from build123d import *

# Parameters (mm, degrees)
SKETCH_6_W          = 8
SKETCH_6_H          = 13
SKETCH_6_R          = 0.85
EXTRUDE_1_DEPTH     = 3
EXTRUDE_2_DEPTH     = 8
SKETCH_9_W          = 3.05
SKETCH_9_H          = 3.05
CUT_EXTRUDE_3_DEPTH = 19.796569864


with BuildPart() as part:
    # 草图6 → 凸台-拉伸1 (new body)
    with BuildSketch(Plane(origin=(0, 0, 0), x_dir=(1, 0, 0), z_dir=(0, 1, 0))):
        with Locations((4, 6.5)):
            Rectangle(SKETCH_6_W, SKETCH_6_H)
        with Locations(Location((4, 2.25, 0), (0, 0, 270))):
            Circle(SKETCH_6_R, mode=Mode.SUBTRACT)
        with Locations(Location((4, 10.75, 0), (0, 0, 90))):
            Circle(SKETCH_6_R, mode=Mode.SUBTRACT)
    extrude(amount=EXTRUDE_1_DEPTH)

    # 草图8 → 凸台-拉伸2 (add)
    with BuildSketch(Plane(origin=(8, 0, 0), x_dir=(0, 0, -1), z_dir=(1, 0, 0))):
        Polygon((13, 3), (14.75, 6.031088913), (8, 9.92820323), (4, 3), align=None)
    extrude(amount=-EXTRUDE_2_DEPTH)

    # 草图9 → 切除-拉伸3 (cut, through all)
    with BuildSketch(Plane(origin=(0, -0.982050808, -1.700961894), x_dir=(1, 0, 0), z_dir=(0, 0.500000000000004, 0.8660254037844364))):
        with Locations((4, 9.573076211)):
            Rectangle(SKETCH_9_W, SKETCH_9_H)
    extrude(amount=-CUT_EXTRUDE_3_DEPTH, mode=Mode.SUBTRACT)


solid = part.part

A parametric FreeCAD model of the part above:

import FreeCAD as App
import Part
import Sketcher

V = App.Vector
Q = App.Units.Quantity

doc = App.newDocument("Part")
body = doc.addObject("PartDesign::Body", "Body")

sketch1 = body.newObject("Sketcher::SketchObject", "Sketch")
sketch1.AttachmentSupport = (doc.getObject("XZ_Plane"), [""])
sketch1.MapMode = "FlatFace"
sketch1.addGeometry([
    Part.LineSegment(V(0, -13, 0), V(0, 0, 0)),
    Part.LineSegment(V(0, 0, 0), V(8, 0, 0)),
    Part.LineSegment(V(8, 0, 0), V(8, -13, 0)),
    Part.LineSegment(V(8, -13, 0), V(0, -13, 0)),
    Part.Circle(V(4, -2.2, 0), V(0, 0, 1), 0.8),
    Part.Circle(V(4, -10.8, 0), V(0, 0, 1), 0.8),
], False)
sketch1.addConstraint([
    Sketcher.Constraint("Coincident", 0, 2, 1, 1),
    Sketcher.Constraint("Coincident", 1, 2, 2, 1),
    Sketcher.Constraint("Coincident", 2, 2, 3, 1),
    Sketcher.Constraint("Coincident", 3, 2, 0, 1),
    Sketcher.Constraint("Vertical", 0),
    Sketcher.Constraint("Horizontal", 1),
    Sketcher.Constraint("Vertical", 2),
    Sketcher.Constraint("Horizontal", 3),
    Sketcher.Constraint("Coincident", 0, 2, -1, 1),
    Sketcher.Constraint("Equal", 4, 5),
    Sketcher.Constraint("Vertical", 4, 3, 5, 3),
    Sketcher.Constraint("Diameter", 4, 1.7),
    Sketcher.Constraint("DistanceX", 1, 1, 1, 2, 8.0),
    Sketcher.Constraint("DistanceY", 0, 1, 0, 2, 13.0),
    Sketcher.Constraint("DistanceX", -1, 1, 4, 3, 4.0),
    Sketcher.Constraint("DistanceY", 5, 3, 4, 3, 8.5),
    Sketcher.Constraint("DistanceY", 4, 3, -1, 1, 2.25),
])
pad1 = body.newObject("PartDesign::Pad", "Pad")
pad1.Profile = sketch1
pad1.Length = 3
pad1.Reversed = True

sketch2 = body.newObject("Sketcher::SketchObject", "Sketch001")
sketch2.AttachmentSupport = (doc.getObject("YZ_Plane"), [""])
sketch2.MapMode = "FlatFace"
sketch2.AttachmentOffset = App.Placement(V(0, 0, 8), App.Rotation())
sketch2.addGeometry([
    Part.LineSegment(V(3, -13, 0), V(6, -14.8, 0)),
    Part.LineSegment(V(6, -14.8, 0), V(9.9, -8, 0)),
    Part.LineSegment(V(9.9, -8, 0), V(3, -4, 0)),
    Part.LineSegment(V(3, -4, 0), V(3, -13, 0)),
], False)
sketch2.addConstraint([
    Sketcher.Constraint("Coincident", 0, 2, 1, 1),
    Sketcher.Constraint("Coincident", 1, 2, 2, 1),
    Sketcher.Constraint("Coincident", 2, 2, 3, 1),
    Sketcher.Constraint("Coincident", 3, 2, 0, 1),
    Sketcher.Constraint("Vertical", 3),
    Sketcher.Constraint("Perpendicular", 0, 1),
    Sketcher.Constraint("Perpendicular", 1, 2),
    Sketcher.Constraint("DistanceY", 3, 2, 3, 1, 9.0),
    Sketcher.Constraint("Angle", 0, Q("-30 deg")),
    Sketcher.Constraint("Distance", 2, 8.0),
    Sketcher.Constraint("DistanceY", 1, 2, -1, 1, 8.0),
    Sketcher.Constraint("DistanceX", -1, 1, 2, 2, 3.0),
])
pad2 = body.newObject("PartDesign::Pad", "Pad001")
pad2.Profile = sketch2
pad2.Length = 8
pad2.Reversed = True

sketch3 = body.newObject("Sketcher::SketchObject", "Sketch002")
sketch3.Placement = App.Placement(V(0, -0.982051, -1.700962), App.Rotation(V(1, 0, 0), V(0, 0.866025404, -0.5), V(0, 0.5, 0.866025404), "ZXY"))
sketch3.addGeometry([
    Part.LineSegment(V(2.5, 11.1, 0), V(2.5, 8, 0)),
    Part.LineSegment(V(2.5, 8, 0), V(5.5, 8, 0)),
    Part.LineSegment(V(5.5, 8, 0), V(5.5, 11.1, 0)),
    Part.LineSegment(V(5.5, 11.1, 0), V(2.5, 11.1, 0)),
], False)
sketch3.addConstraint([
    Sketcher.Constraint("Coincident", 0, 2, 1, 1),
    Sketcher.Constraint("Coincident", 1, 2, 2, 1),
    Sketcher.Constraint("Coincident", 2, 2, 3, 1),
    Sketcher.Constraint("Coincident", 3, 2, 0, 1),
    Sketcher.Constraint("Vertical", 0),
    Sketcher.Constraint("Horizontal", 1),
    Sketcher.Constraint("Vertical", 2),
    Sketcher.Constraint("Horizontal", 3),
    Sketcher.Constraint("Equal", 3, 0),
    Sketcher.Constraint("DistanceX", 1, 1, 1, 2, 3.05),
    Sketcher.Constraint("DistanceX", -1, 1, 0, 2, 2.475),
    Sketcher.Constraint("DistanceY", -1, 1, 0, 2, 8.048076),
])
pocket1 = body.newObject("PartDesign::Pocket", "Pocket")
pocket1.Profile = sketch3
pocket1.Type = "ThroughAll"

doc.recompute()
